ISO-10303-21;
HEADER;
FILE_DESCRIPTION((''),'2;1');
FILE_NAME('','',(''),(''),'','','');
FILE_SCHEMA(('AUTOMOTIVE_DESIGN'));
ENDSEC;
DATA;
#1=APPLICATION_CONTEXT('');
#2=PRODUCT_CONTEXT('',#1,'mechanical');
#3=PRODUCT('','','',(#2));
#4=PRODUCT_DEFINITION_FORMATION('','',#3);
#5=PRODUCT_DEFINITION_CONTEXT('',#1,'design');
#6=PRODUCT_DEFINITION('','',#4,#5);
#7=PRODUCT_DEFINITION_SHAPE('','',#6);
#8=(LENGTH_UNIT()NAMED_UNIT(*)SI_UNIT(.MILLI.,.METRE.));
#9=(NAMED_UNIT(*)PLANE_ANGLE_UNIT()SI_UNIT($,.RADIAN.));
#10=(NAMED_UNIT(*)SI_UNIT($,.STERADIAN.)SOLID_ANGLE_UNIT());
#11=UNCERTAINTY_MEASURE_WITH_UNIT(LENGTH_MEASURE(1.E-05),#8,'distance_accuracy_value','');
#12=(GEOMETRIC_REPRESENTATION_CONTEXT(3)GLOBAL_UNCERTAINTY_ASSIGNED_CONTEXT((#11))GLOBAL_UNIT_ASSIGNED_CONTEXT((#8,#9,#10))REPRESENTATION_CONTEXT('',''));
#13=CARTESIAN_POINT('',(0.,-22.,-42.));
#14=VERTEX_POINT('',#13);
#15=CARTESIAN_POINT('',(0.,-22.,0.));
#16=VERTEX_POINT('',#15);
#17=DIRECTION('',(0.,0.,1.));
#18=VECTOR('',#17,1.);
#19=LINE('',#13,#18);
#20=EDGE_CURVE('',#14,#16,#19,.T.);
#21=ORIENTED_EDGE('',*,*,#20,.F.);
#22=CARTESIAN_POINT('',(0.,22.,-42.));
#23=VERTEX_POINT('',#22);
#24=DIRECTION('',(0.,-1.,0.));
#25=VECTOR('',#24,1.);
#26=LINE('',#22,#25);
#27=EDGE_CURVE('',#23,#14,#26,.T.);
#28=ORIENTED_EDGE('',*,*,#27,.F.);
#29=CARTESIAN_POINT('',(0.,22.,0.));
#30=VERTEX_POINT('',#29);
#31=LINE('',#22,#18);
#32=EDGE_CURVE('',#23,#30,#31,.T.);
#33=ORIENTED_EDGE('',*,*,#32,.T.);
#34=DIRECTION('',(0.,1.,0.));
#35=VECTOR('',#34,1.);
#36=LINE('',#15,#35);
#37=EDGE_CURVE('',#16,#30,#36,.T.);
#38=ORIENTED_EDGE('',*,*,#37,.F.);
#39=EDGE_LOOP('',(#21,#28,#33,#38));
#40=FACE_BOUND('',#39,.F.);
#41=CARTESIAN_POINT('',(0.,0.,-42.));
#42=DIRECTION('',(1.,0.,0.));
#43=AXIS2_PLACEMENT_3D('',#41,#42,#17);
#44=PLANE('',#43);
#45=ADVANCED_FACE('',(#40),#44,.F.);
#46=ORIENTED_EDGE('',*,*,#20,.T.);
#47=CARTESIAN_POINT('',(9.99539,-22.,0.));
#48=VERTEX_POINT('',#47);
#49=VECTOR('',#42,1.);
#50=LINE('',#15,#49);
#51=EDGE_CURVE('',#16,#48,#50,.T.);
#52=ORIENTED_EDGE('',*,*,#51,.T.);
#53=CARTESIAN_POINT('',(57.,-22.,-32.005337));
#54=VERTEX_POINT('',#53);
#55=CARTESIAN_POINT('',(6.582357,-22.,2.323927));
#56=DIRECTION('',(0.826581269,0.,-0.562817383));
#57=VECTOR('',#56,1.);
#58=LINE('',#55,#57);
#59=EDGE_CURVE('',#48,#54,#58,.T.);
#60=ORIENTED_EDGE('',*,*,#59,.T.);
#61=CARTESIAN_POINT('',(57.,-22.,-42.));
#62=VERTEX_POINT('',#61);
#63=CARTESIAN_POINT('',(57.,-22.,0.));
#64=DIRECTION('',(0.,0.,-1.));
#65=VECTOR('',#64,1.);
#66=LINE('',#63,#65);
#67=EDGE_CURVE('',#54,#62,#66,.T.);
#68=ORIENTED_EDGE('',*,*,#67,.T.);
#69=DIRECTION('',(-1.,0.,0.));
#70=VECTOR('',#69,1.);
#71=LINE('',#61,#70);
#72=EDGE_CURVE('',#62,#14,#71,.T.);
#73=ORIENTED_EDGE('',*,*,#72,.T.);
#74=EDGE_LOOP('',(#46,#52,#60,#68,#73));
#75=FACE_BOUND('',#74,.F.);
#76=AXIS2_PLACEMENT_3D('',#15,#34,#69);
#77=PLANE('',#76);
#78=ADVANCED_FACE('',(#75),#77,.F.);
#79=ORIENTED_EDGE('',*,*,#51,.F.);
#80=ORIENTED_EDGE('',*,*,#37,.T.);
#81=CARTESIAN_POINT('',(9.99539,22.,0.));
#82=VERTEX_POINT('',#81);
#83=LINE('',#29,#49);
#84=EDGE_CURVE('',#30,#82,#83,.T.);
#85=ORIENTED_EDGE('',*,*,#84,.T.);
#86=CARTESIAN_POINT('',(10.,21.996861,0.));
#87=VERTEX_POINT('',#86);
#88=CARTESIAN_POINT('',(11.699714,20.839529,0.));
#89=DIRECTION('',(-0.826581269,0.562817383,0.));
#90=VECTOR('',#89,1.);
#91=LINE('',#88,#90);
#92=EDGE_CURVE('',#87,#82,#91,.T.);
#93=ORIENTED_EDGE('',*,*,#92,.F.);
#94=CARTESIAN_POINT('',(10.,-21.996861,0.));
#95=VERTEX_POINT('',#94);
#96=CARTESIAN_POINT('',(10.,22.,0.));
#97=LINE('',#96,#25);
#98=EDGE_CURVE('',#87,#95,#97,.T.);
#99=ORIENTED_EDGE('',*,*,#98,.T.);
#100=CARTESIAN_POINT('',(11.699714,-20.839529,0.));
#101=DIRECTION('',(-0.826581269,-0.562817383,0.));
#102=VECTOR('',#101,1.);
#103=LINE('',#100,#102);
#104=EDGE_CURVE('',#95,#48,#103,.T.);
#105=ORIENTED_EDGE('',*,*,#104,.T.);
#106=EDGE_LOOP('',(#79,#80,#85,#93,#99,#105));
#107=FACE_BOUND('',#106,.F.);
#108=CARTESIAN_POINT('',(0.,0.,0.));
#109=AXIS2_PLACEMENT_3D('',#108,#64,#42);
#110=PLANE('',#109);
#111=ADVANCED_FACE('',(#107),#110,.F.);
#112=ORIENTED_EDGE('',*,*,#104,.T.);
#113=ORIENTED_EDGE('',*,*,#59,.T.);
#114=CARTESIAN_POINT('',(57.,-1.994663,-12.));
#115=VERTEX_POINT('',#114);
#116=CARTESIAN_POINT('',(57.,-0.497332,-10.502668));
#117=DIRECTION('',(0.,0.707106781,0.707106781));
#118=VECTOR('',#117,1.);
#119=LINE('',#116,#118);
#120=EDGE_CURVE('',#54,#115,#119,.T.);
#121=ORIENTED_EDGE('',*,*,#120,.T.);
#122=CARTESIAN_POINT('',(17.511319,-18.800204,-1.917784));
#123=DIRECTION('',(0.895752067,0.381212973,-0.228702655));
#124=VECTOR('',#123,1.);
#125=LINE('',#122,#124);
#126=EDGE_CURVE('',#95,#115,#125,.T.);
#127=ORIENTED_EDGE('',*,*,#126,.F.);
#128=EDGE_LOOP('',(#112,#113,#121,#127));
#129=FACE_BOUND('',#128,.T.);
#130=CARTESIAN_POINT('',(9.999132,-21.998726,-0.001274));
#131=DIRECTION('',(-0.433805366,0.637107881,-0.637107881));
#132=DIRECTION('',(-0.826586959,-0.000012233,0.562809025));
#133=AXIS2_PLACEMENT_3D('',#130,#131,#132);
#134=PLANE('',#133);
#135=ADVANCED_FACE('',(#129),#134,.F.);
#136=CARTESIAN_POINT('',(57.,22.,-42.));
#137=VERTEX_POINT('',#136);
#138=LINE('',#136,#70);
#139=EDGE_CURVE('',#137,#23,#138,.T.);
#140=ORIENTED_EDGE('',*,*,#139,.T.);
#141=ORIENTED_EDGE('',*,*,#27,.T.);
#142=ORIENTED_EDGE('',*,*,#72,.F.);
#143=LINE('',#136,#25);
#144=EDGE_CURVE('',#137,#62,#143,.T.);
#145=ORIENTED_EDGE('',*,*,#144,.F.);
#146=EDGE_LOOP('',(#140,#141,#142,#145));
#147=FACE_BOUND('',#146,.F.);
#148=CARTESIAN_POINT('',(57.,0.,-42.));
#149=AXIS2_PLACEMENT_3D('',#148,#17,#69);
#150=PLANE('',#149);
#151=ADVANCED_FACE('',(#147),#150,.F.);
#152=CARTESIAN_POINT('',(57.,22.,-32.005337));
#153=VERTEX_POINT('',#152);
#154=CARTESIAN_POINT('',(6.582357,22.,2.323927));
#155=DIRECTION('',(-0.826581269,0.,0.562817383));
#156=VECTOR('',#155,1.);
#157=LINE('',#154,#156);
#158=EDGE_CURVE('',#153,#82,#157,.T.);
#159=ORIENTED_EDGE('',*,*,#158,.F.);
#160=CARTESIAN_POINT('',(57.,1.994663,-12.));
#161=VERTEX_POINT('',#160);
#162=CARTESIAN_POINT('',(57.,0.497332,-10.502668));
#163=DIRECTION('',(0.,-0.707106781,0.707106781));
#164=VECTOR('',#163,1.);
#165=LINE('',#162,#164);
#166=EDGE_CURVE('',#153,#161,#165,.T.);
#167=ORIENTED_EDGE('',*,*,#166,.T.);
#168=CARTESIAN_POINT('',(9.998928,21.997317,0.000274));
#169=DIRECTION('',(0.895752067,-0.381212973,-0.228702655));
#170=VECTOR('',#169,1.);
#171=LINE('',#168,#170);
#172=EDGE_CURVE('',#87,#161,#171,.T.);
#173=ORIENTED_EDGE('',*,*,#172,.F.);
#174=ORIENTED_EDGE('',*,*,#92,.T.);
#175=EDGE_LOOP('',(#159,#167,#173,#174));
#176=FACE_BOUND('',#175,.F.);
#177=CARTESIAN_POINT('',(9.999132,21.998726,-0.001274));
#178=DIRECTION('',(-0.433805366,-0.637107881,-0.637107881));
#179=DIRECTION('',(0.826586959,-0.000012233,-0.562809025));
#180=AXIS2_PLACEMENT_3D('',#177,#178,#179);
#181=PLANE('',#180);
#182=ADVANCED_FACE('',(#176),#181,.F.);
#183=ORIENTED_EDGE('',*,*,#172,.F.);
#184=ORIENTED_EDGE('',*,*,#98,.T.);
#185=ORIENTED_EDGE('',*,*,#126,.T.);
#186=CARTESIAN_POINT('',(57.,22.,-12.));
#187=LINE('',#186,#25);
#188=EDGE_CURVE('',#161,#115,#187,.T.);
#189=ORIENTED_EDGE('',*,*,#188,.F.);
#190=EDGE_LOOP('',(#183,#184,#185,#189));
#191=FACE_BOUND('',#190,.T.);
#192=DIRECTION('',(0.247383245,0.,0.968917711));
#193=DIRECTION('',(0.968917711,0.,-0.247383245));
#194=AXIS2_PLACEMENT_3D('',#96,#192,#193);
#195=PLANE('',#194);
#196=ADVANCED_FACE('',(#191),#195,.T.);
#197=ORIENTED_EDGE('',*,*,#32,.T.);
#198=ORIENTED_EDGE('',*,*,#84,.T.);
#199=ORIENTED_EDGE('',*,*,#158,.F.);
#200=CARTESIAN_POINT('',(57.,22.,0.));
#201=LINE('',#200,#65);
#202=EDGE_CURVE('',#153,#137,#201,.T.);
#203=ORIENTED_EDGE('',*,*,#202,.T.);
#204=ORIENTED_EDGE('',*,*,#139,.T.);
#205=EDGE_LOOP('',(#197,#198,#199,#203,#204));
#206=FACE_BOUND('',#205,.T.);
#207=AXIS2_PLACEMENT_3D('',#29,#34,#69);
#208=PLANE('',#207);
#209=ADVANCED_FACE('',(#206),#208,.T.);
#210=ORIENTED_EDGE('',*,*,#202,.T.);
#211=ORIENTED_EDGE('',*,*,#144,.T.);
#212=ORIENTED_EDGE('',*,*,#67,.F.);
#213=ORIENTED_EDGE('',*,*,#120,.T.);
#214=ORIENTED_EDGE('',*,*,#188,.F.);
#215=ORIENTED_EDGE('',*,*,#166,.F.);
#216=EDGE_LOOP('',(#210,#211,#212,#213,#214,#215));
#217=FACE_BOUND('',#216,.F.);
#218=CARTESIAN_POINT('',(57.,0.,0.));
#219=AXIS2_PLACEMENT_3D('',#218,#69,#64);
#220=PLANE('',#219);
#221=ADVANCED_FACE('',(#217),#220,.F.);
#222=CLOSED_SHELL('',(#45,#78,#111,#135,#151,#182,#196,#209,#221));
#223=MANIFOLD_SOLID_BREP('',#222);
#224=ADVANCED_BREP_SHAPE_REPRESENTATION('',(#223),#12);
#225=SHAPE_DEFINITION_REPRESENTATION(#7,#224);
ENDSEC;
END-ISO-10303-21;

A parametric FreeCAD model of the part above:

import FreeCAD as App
import Part
import Sketcher

V = App.Vector
Q = App.Units.Quantity

doc = App.newDocument("Part")
body = doc.addObject("PartDesign::Body", "Body")

# Sketch on XZ plane
sketch1 = body.newObject("Sketcher::SketchObject", "Sketch")
sketch1.AttachmentSupport = (doc.getObject("XZ_Plane"), [""])
sketch1.MapMode = "FlatFace"
sketch1.addGeometry([
    Part.LineSegment(V(0, -42, 0), V(0, 0, 0)),
    Part.LineSegment(V(0, 0, 0), V(57, 0, 0)),
    Part.LineSegment(V(57, 0, 0), V(57, -42, 0)),
    Part.LineSegment(V(57, -42, 0), V(0, -42, 0)),
], False)
sketch1.addConstraint([
    Sketcher.Constraint("Coincident", 0, 2, 1, 1),
    Sketcher.Constraint("Coincident", 1, 2, 2, 1),
    Sketcher.Constraint("Coincident", 2, 2, 3, 1),
    Sketcher.Constraint("Coincident", 3, 2, 0, 1),
    Sketcher.Constraint("Vertical", 0),
    Sketcher.Constraint("Horizontal", 1),
    Sketcher.Constraint("Vertical", 2),
    Sketcher.Constraint("Horizontal", 3),
    Sketcher.Constraint("Coincident", 0, 2, -1, 1),
    Sketcher.Constraint("DistanceX", 1, 1, 1, 2, Q("57 mm")),
    Sketcher.Constraint("DistanceY", 0, 1, 0, 2, Q("42 mm")),
])
pad1 = body.newObject("PartDesign::Pad", "Pad")
pad1.Profile = sketch1
pad1.Length = 44
pad1.Midplane = True

# Sketch on XZ plane
sketch2 = body.newObject("Sketcher::SketchObject", "Sketch001")
sketch2.AttachmentSupport = (doc.getObject("XZ_Plane"), [""])
sketch2.MapMode = "FlatFace"
sketch2.AttachmentOffset = App.Placement(V(0, 0, -22), App.Rotation())
sketch2.addGeometry([
    Part.LineSegment(V(57, -12, 0), V(10, 0, 0)),
    Part.LineSegment(V(10, 0, 0), V(57, 0, 0)),
    Part.LineSegment(V(57, 0, 0), V(57, -12, 0)),
], False)
sketch2.addConstraint([
    Sketcher.Constraint("Coincident", 0, 2, 1, 1),
    Sketcher.Constraint("Coincident", 1, 2, 2, 1),
    Sketcher.Constraint("Coincident", 2, 2, 0, 1),
    Sketcher.Constraint("Horizontal", 1),
    Sketcher.Constraint("Vertical", 2),
    Sketcher.Constraint("PointOnObject", 0, 2, -1),
    Sketcher.Constraint("DistanceX", -1, 1, 0, 2, Q("10 mm")),
    Sketcher.Constraint("DistanceX", 1, 1, 1, 2, Q("47 mm")),
    Sketcher.Constraint("DistanceY", 2, 2, 2, 1, Q("12 mm")),
])
pocket1 = body.newObject("PartDesign::Pocket", "Pocket")
pocket1.Profile = sketch2
pocket1.Length = 60
pocket1.Reversed = True

# Sketch on an angled plane
sketch3 = body.newObject("Sketcher::SketchObject", "Sketch002")
sketch3.Placement = App.Placement(V(10, 22, 0), App.Rotation(V(0.826586959, -0.000012233, -0.562809025), V(0.358562272, -0.770774641, 0.526630373), V(-0.433805366, -0.637107881, -0.637107881), "ZXY"))
sketch3.addGeometry([
    Part.LineSegment(V(-15.1543, 28.8166, 0), V(-15.1543, -12.3218, 0)),
    Part.LineSegment(V(-15.1543, -12.3218, 0), V(93.717, -12.3218, 0)),
    Part.LineSegment(V(93.717, -12.3218, 0), V(93.717, 28.8166, 0)),
    Part.LineSegment(V(93.717, 28.8166, 0), V(-15.1543, 28.8166, 0)),
], False)
sketch3.addConstraint([
    Sketcher.Constraint("Coincident", 0, 2, 1, 1),
    Sketcher.Constraint("Coincident", 1, 2, 2, 1),
    Sketcher.Constraint("Coincident", 2, 2, 3, 1),
    Sketcher.Constraint("Coincident", 3, 2, 0, 1),
    Sketcher.Constraint("Vertical", 0),
    Sketcher.Constraint("Horizontal", 1),
    Sketcher.Constraint("Vertical", 2),
    Sketcher.Constraint("Horizontal", 3),
    Sketcher.Constraint("DistanceX", 1, 1, 1, 2, Q("108.8713 mm")),
    Sketcher.Constraint("DistanceY", 0, 2, 0, 1, Q("41.1384 mm")),
    Sketcher.Constraint("DistanceX", -1, 1, 1, 2, Q("93.717 mm")),
    Sketcher.Constraint("DistanceY", 0, 2, -1, 1, Q("12.3218 mm")),
])
pocket2 = body.newObject("PartDesign::Pocket", "Pocket001")
pocket2.Profile = sketch3
pocket2.Length = 40
doc.recompute()

mirrored = body.newObject("PartDesign::Mirrored", "Mirrored")
mirrored.Originals = [pocket2]
mirrored.MirrorPlane = (doc.getObject("XZ_Plane"), [""])
body.Tip = mirrored

doc.recompute()
